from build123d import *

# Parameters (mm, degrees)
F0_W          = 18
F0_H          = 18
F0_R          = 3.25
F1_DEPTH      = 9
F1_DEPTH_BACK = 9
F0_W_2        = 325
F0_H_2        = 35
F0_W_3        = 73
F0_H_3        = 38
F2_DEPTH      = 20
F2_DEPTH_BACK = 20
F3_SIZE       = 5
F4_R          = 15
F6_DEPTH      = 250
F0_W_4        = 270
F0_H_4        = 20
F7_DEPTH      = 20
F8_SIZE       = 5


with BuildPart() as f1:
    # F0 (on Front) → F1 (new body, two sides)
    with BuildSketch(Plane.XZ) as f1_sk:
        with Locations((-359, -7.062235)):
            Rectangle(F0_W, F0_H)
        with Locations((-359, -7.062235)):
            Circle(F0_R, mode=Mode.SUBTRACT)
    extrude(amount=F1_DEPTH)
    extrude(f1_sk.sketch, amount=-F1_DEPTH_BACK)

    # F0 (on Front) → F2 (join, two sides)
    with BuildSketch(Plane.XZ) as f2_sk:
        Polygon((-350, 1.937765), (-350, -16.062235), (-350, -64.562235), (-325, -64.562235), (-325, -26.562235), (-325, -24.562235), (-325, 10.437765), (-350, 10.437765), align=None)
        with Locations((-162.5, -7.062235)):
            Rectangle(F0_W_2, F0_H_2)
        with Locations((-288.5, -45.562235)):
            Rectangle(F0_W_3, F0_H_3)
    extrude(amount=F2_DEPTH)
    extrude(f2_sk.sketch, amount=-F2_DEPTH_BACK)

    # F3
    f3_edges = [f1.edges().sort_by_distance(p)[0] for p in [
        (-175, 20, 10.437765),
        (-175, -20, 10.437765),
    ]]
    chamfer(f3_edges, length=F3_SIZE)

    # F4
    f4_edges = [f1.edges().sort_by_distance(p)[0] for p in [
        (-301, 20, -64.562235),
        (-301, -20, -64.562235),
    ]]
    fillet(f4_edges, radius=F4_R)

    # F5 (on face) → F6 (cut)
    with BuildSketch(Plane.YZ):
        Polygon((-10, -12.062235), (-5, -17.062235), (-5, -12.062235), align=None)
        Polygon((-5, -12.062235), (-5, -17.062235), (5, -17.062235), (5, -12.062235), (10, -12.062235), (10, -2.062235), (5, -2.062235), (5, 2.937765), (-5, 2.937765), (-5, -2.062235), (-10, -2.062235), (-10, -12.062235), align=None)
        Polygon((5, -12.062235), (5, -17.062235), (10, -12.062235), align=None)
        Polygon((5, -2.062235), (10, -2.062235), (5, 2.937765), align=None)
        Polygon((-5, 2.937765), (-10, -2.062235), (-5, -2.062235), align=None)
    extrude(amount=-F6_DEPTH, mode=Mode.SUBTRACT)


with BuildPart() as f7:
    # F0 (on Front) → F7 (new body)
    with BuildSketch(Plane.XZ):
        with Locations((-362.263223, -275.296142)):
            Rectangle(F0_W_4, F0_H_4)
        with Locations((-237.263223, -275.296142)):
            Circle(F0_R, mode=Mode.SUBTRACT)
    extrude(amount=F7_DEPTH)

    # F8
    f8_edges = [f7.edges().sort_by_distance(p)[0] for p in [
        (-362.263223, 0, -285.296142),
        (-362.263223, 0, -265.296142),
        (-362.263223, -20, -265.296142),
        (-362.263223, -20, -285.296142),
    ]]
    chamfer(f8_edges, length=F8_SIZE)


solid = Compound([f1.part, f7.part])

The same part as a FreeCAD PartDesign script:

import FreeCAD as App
import Part
import Sketcher
from FreeCAD import Vector
Q = App.Units.Quantity


def edges_at(feature, points):
    """Names of the edges that pass closest to the given points."""
    edges = feature.Shape.Edges
    near = lambda p: min(range(len(edges)), key=lambda i: edges[i].distToShape(Part.Vertex(*p))[0])
    return sorted({f"Edge{near(p) + 1}" for p in points})

doc = App.newDocument("Part")
params = doc.addObject("Spreadsheet::Sheet", "Params")
for row, (alias, value) in enumerate([
    ("sketch1_diameter", "6.5 mm"),
    ("sketch1_width", "18 mm"),
    ("pad1_length", "9 mm"),
    ("pad1_length2", "9 mm"),
    ("sketch2_width", "98 mm"),
    ("sketch2_width2", "73 mm"),
    ("sketch2_width3", "325 mm"),
    ("sketch2_height", "38 mm"),
    ("sketch2_height2", "2 mm"),
    ("pad2_length", "20 mm"),
    ("pad2_length2", "20 mm"),
    ("chamfer_size", "5 mm"),
    ("fillet_radius", "15 mm"),
    ("sketch3_width", "10 mm"),
    ("pocket1_length", "250 mm"),
    ("sketch4_diameter", "6.5 mm"),
    ("sketch4_width", "270 mm"),
    ("sketch4_height", "20 mm"),
    ("pad3_length", "20 mm"),
    ("chamfer2_size", "5 mm"),
], start=1):
    params.set(f"A{row}", alias)
    params.set(f"B{row}", "=" + value)
    params.setAlias(f"B{row}", alias)

body = doc.addObject("PartDesign::Body", "Body")

sketch1 = body.newObject("Sketcher::SketchObject", "Sketch")
sketch1.AttachmentSupport = (doc.getObject("XZ_Plane"), [""])
sketch1.MapMode = "FlatFace"
sketch1.addGeometry([
    Part.LineSegment(Vector(-368, 1.937765, 0), Vector(-368, -16.062235, 0)),
    Part.LineSegment(Vector(-368, -16.062235, 0), Vector(-350, -16.062235, 0)),
    Part.LineSegment(Vector(-350, -16.062235, 0), Vector(-350, 1.937765, 0)),
    Part.LineSegment(Vector(-350, 1.937765, 0), Vector(-368, 1.937765, 0)),
    Part.Circle(Vector(-359, -7.062235, 0), Vector(0, 0, 1), 3.25),
], False)
sketch1.addConstraint([
    Sketcher.Constraint("Coincident", 0, 2, 1, 1),
    Sketcher.Constraint("Coincident", 1, 2, 2, 1),
    Sketcher.Constraint("Coincident", 2, 2, 3, 1),
    Sketcher.Constraint("Coincident", 3, 2, 0, 1),
    Sketcher.Constraint("Vertical", 0),
    Sketcher.Constraint("Horizontal", 1),
    Sketcher.Constraint("Vertical", 2),
    Sketcher.Constraint("Horizontal", 3),
    Sketcher.Constraint("Equal", 3, 0),
    Sketcher.Constraint("Diameter", 4, Q("6.5 mm")),
    Sketcher.Constraint("DistanceX", 1, 1, 1, 2, Q("18 mm")),
    Sketcher.Constraint("DistanceX", 4, 3, -1, 1, Q("359 mm")),
    Sketcher.Constraint("DistanceX", 0, 2, -1, 1, Q("368 mm")),
    Sketcher.Constraint("DistanceY", 0, 2, 4, 3, Q("9 mm")),
    Sketcher.Constraint("DistanceY", 4, 3, -1, 1, Q("7.062235 mm")),
])
sketch1.setExpression("Constraints[9]", "Params.sketch1_diameter")
sketch1.setExpression("Constraints[10]", "Params.sketch1_width")
pad1 = body.newObject("PartDesign::Pad", "Pad")
pad1.Profile = sketch1
pad1.Type = "TwoLengths"
pad1.setExpression("Length", "Params.pad1_length")
pad1.setExpression("Length2", "Params.pad1_length2")

sketch2 = body.newObject("Sketcher::SketchObject", "Sketch001")
sketch2.AttachmentSupport = (doc.getObject("XZ_Plane"), [""])
sketch2.MapMode = "FlatFace"
sketch2.addGeometry([
    Part.LineSegment(Vector(-350, -64.562235, 0), Vector(-252, -64.562235, 0)),
    Part.LineSegment(Vector(-252, -64.562235, 0), Vector(-252, -26.562235, 0)),
    Part.LineSegment(Vector(-252, -26.562235, 0), Vector(-325, -26.562235, 0)),
    Part.LineSegment(Vector(-325, -26.562235, 0), Vector(-325, -24.562235, 0)),
    Part.LineSegment(Vector(-325, -24.562235, 0), Vector(0, -24.562235, 0)),
    Part.LineSegment(Vector(0, -24.562235, 0), Vector(0, 10.437765, 0)),
    Part.LineSegment(Vector(0, 10.437765, 0), Vector(-350, 10.437765, 0)),
    Part.LineSegment(Vector(-350, 10.437765, 0), Vector(-350, -64.562235, 0)),
], False)
sketch2.addConstraint([
    Sketcher.Constraint("Coincident", 0, 2, 1, 1),
    Sketcher.Constraint("Coincident", 1, 2, 2, 1),
    Sketcher.Constraint("Coincident", 2, 2, 3, 1),
    Sketcher.Constraint("Coincident", 3, 2, 4, 1),
    Sketcher.Constraint("Coincident", 4, 2, 5, 1),
    Sketcher.Constraint("Coincident", 5, 2, 6, 1),
    Sketcher.Constraint("Coincident", 6, 2, 7, 1),
    Sketcher.Constraint("Coincident", 7, 2, 0, 1),
    Sketcher.Constraint("Horizontal", 0),
    Sketcher.Constraint("Vertical", 1),
    Sketcher.Constraint("Horizontal", 2),
    Sketcher.Constraint("Vertical", 3),
    Sketcher.Constraint("Horizontal", 4),
    Sketcher.Constraint("Vertical", 5),
    Sketcher.Constraint("Horizontal", 6),
    Sketcher.Constraint("Vertical", 7),
    Sketcher.Constraint("PointOnObject", 4, 2, -2),
    Sketcher.Constraint("DistanceX", 0, 1, 0, 2, Q("98 mm")),
    Sketcher.Constraint("DistanceX", 2, 2, 2, 1, Q("73 mm")),
    Sketcher.Constraint("DistanceX", 4, 1, 4, 2, Q("325 mm")),
    Sketcher.Constraint("DistanceY", 1, 1, 1, 2, Q("38 mm")),
    Sketcher.Constraint("DistanceY", 3, 1, 3, 2, Q("2 mm")),
    Sketcher.Constraint("DistanceY", 5, 1, 5, 2, Q("35 mm")),
    Sketcher.Constraint("DistanceY", 0, 2, -1, 1, Q("64.562235 mm")),
])
sketch2.setExpression("Constraints[17]", "Params.sketch2_width")
sketch2.setExpression("Constraints[18]", "Params.sketch2_width2")
sketch2.setExpression("Constraints[19]", "Params.sketch2_width3")
sketch2.setExpression("Constraints[20]", "Params.sketch2_height")
sketch2.setExpression("Constraints[21]", "Params.sketch2_height2")
pad2 = body.newObject("PartDesign::Pad", "Pad001")
pad2.Profile = sketch2
pad2.Type = "TwoLengths"
pad2.setExpression("Length", "Params.pad2_length")
pad2.setExpression("Length2", "Params.pad2_length2")
doc.recompute()

chamfer = body.newObject("PartDesign::Chamfer", "Chamfer")
chamfer.Base = (pad2, edges_at(pad2, [(-175, 20, 10.438), (-175, -20, 10.438)]))
chamfer.setExpression("Size", "Params.chamfer_size")
doc.recompute()

fillet = body.newObject("PartDesign::Fillet", "Fillet")
fillet.Base = (chamfer, edges_at(chamfer, [(-301, 20, -64.562), (-301, -20, -64.562)]))
fillet.setExpression("Radius", "Params.fillet_radius")

sketch3 = body.newObject("Sketcher::SketchObject", "Sketch002")
sketch3.AttachmentSupport = (doc.getObject("YZ_Plane"), [""])
sketch3.MapMode = "FlatFace"
sketch3.addGeometry([
    Part.LineSegment(Vector(-10, -12.062235, 0), Vector(-5, -17.062235, 0)),
    Part.LineSegment(Vector(-5, -17.062235, 0), Vector(5, -17.062235, 0)),
    Part.LineSegment(Vector(5, -17.062235, 0), Vector(10, -12.062235, 0)),
    Part.LineSegment(Vector(10, -12.062235, 0), Vector(10, -2.062235, 0)),
    Part.LineSegment(Vector(10, -2.062235, 0), Vector(5, 2.937765, 0)),
    Part.LineSegment(Vector(5, 2.937765, 0), Vector(-5, 2.937765, 0)),
    Part.LineSegment(Vector(-5, 2.937765, 0), Vector(-10, -2.062235, 0)),
    Part.LineSegment(Vector(-10, -2.062235, 0), Vector(-10, -12.062235, 0)),
], False)
sketch3.addConstraint([
    Sketcher.Constraint("Coincident", 0, 2, 1, 1),
    Sketcher.Constraint("Coincident", 1, 2, 2, 1),
    Sketcher.Constraint("Coincident", 2, 2, 3, 1),
    Sketcher.Constraint("Coincident", 3, 2, 4, 1),
    Sketcher.Constraint("Coincident", 4, 2, 5, 1),
    Sketcher.Constraint("Coincident", 5, 2, 6, 1),
    Sketcher.Constraint("Coincident", 6, 2, 7, 1),
    Sketcher.Constraint("Coincident", 7, 2, 0, 1),
    Sketcher.Constraint("Horizontal", 1),
    Sketcher.Constraint("Vertical", 3),
    Sketcher.Constraint("Horizontal", 5),
    Sketcher.Constraint("Vertical", 7),
    Sketcher.Constraint("Symmetric", 3, 2, 6, 2, -2),
    Sketcher.Constraint("Perpendicular", 0, 2),
    Sketcher.Constraint("Perpendicular", 2, 4),
    Sketcher.Constraint("Perpendicular", 4, 6),
    Sketcher.Constraint("Horizontal", 2, 2, 7, 2),
    Sketcher.Constraint("Vertical", 1, 2, 4, 2),
    Sketcher.Constraint("Vertical", 0, 2, 5, 2),
    Sketcher.Constraint("Equal", 5, 3),
    Sketcher.Constraint("DistanceX", 1, 1, 1, 2, Q("10 mm")),
    Sketcher.Constraint("DistanceX", -1, 1, 2, 2, Q("10 mm")),
    Sketcher.Constraint("DistanceY", 0, 2, -1, 1, Q("17.062235 mm")),
])
sketch3.setExpression("Constraints[20]", "Params.sketch3_width")
pocket1 = body.newObject("PartDesign::Pocket", "Pocket")
pocket1.Profile = sketch3
pocket1.setExpression("Length", "Params.pocket1_length")
body2 = doc.addObject("PartDesign::Body", "Body001")

sketch4 = body2.newObject("Sketcher::SketchObject", "Sketch003")
sketch4.AttachmentSupport = (doc.getObject("XZ_Plane001"), [""])
sketch4.MapMode = "FlatFace"
sketch4.addGeometry([
    Part.LineSegment(Vector(-497.263223, -265.296142, 0), Vector(-497.263223, -285.296142, 0)),
    Part.LineSegment(Vector(-497.263223, -285.296142, 0), Vector(-227.263223, -285.296142, 0)),
    Part.LineSegment(Vector(-227.263223, -285.296142, 0), Vector(-227.263223, -265.296142, 0)),
    Part.LineSegment(Vector(-227.263223, -265.296142, 0), Vector(-497.263223, -265.296142, 0)),
    Part.Circle(Vector(-237.263223, -275.296142, 0), Vector(0, 0, 1), 3.25),
], False)
sketch4.addConstraint([
    Sketcher.Constraint("Coincident", 0, 2, 1, 1),
    Sketcher.Constraint("Coincident", 1, 2, 2, 1),
    Sketcher.Constraint("Coincident", 2, 2, 3, 1),
    Sketcher.Constraint("Coincident", 3, 2, 0, 1),
    Sketcher.Constraint("Vertical", 0),
    Sketcher.Constraint("Horizontal", 1),
    Sketcher.Constraint("Vertical", 2),
    Sketcher.Constraint("Horizontal", 3),
    Sketcher.Constraint("Diameter", 4, Q("6.5 mm")),
    Sketcher.Constraint("DistanceX", 1, 1, 1, 2, Q("270 mm")),
    Sketcher.Constraint("DistanceY", 0, 2, 0, 1, Q("20 mm")),
    Sketcher.Constraint("DistanceX", 0, 2, 4, 3, Q("260 mm")),
    Sketcher.Constraint("DistanceY", 0, 2, 4, 3, Q("10 mm")),
    Sketcher.Constraint("DistanceY", 4, 3, -1, 1, Q("275.296142 mm")),
    Sketcher.Constraint("DistanceX", 4, 3, -1, 1, Q("237.263223 mm")),
])
sketch4.setExpression("Constraints[8]", "Params.sketch4_diameter")
sketch4.setExpression("Constraints[9]", "Params.sketch4_width")
sketch4.setExpression("Constraints[10]", "Params.sketch4_height")
pad3 = body2.newObject("PartDesign::Pad", "Pad002")
pad3.Profile = sketch4
pad3.setExpression("Length", "Params.pad3_length")
doc.recompute()

chamfer2 = body2.newObject("PartDesign::Chamfer", "Chamfer001")
chamfer2.Base = (pad3, edges_at(pad3, [
    (-362.263, 0, -285.296),
    (-362.263, 0, -265.296),
    (-362.263, -20, -265.296),
    (-362.263, -20, -285.296),
]))
chamfer2.setExpression("Size", "Params.chamfer2_size")

doc.recompute()
